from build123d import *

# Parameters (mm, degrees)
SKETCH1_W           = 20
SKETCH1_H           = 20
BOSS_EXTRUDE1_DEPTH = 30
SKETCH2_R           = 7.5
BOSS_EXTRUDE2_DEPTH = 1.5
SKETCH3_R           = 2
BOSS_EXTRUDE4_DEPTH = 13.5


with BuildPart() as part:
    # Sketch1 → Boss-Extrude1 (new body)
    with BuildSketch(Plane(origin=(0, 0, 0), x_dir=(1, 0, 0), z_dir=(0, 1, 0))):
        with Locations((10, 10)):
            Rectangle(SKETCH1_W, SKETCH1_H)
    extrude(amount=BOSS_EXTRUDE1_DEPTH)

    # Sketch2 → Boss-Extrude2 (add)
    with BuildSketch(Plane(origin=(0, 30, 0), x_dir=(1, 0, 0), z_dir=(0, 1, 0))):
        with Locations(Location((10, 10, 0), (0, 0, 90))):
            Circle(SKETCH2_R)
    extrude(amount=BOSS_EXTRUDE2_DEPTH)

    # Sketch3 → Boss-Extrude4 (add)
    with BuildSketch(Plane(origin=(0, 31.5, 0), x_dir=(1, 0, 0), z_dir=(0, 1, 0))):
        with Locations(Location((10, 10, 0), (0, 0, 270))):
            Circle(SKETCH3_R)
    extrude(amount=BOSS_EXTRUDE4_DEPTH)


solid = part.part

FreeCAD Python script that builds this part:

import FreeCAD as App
import Part
import Sketcher

V = App.Vector
Q = App.Units.Quantity


def add_polygon(sketch, points):
    """Adds a closed chain of lines whose ends are joined by coincident constraints."""
    first, n = sketch.GeometryCount, len(points)
    for a, b in zip(points, points[1:] + points[:1]):
        sketch.addGeometry(Part.LineSegment(App.Vector(*a, 0), App.Vector(*b, 0)), False)
    for i in range(n):
        sketch.addConstraint(Sketcher.Constraint("Coincident", first + i, 2, first + (i + 1) % n, 1))

doc = App.newDocument("Part")
body = doc.addObject("PartDesign::Body", "Body")

# Sketch on XZ plane
sketch1 = body.newObject("Sketcher::SketchObject", "Sketch")
sketch1.AttachmentSupport = (doc.getObject("XZ_Plane"), [""])
sketch1.MapMode = "FlatFace"
add_polygon(sketch1, [(0, -20), (0, 0), (20, 0), (20, -20)])  # lines 0-3
sketch1.addConstraint([
    Sketcher.Constraint("Vertical", 0),
    Sketcher.Constraint("Horizontal", 1),
    Sketcher.Constraint("Vertical", 2),
    Sketcher.Constraint("Horizontal", 3),
    Sketcher.Constraint("Coincident", 0, 2, -1, 1),
    Sketcher.Constraint("Equal", 3, 0),
    Sketcher.Constraint("DistanceX", 1, 1, 1, 2, Q("20 mm")),
])
pad1 = body.newObject("PartDesign::Pad", "Pad")
pad1.Profile = sketch1
pad1.Length = 30
pad1.Reversed = True

# Sketch on XZ plane
sketch2 = body.newObject("Sketcher::SketchObject", "Sketch001")
sketch2.AttachmentSupport = (doc.getObject("XZ_Plane"), [""])
sketch2.MapMode = "FlatFace"
sketch2.AttachmentOffset = App.Placement(V(0, 0, -30), App.Rotation())
sketch2.addGeometry(Part.Circle(V(10, -10, 0), V(0, 0, 1), 8), False)
sketch2.addConstraint([
    Sketcher.Constraint("Diameter", 0, Q("15 mm")),
    Sketcher.Constraint("DistanceX", -1, 1, 0, 3, Q("10 mm")),
    Sketcher.Constraint("DistanceY", 0, 3, -1, 1, Q("10 mm")),
])
pad2 = body.newObject("PartDesign::Pad", "Pad001")
pad2.Profile = sketch2
pad2.Length = 1.5
pad2.Reversed = True

# Sketch on XZ plane
sketch3 = body.newObject("Sketcher::SketchObject", "Sketch002")
sketch3.AttachmentSupport = (doc.getObject("XZ_Plane"), [""])
sketch3.MapMode = "FlatFace"
sketch3.AttachmentOffset = App.Placement(V(0, 0, -31.5), App.Rotation())
sketch3.addGeometry(Part.Circle(V(10, -10, 0), V(0, 0, 1), 2), False)
sketch3.addConstraint([
    Sketcher.Constraint("Diameter", 0, Q("4 mm")),
    Sketcher.Constraint("DistanceX", -1, 1, 0, 3, Q("10 mm")),
    Sketcher.Constraint("DistanceY", 0, 3, -1, 1, Q("10 mm")),
])
pad3 = body.newObject("PartDesign::Pad", "Pad002")
pad3.Profile = sketch3
pad3.Length = 13.5
pad3.Reversed = True

doc.recompute()
